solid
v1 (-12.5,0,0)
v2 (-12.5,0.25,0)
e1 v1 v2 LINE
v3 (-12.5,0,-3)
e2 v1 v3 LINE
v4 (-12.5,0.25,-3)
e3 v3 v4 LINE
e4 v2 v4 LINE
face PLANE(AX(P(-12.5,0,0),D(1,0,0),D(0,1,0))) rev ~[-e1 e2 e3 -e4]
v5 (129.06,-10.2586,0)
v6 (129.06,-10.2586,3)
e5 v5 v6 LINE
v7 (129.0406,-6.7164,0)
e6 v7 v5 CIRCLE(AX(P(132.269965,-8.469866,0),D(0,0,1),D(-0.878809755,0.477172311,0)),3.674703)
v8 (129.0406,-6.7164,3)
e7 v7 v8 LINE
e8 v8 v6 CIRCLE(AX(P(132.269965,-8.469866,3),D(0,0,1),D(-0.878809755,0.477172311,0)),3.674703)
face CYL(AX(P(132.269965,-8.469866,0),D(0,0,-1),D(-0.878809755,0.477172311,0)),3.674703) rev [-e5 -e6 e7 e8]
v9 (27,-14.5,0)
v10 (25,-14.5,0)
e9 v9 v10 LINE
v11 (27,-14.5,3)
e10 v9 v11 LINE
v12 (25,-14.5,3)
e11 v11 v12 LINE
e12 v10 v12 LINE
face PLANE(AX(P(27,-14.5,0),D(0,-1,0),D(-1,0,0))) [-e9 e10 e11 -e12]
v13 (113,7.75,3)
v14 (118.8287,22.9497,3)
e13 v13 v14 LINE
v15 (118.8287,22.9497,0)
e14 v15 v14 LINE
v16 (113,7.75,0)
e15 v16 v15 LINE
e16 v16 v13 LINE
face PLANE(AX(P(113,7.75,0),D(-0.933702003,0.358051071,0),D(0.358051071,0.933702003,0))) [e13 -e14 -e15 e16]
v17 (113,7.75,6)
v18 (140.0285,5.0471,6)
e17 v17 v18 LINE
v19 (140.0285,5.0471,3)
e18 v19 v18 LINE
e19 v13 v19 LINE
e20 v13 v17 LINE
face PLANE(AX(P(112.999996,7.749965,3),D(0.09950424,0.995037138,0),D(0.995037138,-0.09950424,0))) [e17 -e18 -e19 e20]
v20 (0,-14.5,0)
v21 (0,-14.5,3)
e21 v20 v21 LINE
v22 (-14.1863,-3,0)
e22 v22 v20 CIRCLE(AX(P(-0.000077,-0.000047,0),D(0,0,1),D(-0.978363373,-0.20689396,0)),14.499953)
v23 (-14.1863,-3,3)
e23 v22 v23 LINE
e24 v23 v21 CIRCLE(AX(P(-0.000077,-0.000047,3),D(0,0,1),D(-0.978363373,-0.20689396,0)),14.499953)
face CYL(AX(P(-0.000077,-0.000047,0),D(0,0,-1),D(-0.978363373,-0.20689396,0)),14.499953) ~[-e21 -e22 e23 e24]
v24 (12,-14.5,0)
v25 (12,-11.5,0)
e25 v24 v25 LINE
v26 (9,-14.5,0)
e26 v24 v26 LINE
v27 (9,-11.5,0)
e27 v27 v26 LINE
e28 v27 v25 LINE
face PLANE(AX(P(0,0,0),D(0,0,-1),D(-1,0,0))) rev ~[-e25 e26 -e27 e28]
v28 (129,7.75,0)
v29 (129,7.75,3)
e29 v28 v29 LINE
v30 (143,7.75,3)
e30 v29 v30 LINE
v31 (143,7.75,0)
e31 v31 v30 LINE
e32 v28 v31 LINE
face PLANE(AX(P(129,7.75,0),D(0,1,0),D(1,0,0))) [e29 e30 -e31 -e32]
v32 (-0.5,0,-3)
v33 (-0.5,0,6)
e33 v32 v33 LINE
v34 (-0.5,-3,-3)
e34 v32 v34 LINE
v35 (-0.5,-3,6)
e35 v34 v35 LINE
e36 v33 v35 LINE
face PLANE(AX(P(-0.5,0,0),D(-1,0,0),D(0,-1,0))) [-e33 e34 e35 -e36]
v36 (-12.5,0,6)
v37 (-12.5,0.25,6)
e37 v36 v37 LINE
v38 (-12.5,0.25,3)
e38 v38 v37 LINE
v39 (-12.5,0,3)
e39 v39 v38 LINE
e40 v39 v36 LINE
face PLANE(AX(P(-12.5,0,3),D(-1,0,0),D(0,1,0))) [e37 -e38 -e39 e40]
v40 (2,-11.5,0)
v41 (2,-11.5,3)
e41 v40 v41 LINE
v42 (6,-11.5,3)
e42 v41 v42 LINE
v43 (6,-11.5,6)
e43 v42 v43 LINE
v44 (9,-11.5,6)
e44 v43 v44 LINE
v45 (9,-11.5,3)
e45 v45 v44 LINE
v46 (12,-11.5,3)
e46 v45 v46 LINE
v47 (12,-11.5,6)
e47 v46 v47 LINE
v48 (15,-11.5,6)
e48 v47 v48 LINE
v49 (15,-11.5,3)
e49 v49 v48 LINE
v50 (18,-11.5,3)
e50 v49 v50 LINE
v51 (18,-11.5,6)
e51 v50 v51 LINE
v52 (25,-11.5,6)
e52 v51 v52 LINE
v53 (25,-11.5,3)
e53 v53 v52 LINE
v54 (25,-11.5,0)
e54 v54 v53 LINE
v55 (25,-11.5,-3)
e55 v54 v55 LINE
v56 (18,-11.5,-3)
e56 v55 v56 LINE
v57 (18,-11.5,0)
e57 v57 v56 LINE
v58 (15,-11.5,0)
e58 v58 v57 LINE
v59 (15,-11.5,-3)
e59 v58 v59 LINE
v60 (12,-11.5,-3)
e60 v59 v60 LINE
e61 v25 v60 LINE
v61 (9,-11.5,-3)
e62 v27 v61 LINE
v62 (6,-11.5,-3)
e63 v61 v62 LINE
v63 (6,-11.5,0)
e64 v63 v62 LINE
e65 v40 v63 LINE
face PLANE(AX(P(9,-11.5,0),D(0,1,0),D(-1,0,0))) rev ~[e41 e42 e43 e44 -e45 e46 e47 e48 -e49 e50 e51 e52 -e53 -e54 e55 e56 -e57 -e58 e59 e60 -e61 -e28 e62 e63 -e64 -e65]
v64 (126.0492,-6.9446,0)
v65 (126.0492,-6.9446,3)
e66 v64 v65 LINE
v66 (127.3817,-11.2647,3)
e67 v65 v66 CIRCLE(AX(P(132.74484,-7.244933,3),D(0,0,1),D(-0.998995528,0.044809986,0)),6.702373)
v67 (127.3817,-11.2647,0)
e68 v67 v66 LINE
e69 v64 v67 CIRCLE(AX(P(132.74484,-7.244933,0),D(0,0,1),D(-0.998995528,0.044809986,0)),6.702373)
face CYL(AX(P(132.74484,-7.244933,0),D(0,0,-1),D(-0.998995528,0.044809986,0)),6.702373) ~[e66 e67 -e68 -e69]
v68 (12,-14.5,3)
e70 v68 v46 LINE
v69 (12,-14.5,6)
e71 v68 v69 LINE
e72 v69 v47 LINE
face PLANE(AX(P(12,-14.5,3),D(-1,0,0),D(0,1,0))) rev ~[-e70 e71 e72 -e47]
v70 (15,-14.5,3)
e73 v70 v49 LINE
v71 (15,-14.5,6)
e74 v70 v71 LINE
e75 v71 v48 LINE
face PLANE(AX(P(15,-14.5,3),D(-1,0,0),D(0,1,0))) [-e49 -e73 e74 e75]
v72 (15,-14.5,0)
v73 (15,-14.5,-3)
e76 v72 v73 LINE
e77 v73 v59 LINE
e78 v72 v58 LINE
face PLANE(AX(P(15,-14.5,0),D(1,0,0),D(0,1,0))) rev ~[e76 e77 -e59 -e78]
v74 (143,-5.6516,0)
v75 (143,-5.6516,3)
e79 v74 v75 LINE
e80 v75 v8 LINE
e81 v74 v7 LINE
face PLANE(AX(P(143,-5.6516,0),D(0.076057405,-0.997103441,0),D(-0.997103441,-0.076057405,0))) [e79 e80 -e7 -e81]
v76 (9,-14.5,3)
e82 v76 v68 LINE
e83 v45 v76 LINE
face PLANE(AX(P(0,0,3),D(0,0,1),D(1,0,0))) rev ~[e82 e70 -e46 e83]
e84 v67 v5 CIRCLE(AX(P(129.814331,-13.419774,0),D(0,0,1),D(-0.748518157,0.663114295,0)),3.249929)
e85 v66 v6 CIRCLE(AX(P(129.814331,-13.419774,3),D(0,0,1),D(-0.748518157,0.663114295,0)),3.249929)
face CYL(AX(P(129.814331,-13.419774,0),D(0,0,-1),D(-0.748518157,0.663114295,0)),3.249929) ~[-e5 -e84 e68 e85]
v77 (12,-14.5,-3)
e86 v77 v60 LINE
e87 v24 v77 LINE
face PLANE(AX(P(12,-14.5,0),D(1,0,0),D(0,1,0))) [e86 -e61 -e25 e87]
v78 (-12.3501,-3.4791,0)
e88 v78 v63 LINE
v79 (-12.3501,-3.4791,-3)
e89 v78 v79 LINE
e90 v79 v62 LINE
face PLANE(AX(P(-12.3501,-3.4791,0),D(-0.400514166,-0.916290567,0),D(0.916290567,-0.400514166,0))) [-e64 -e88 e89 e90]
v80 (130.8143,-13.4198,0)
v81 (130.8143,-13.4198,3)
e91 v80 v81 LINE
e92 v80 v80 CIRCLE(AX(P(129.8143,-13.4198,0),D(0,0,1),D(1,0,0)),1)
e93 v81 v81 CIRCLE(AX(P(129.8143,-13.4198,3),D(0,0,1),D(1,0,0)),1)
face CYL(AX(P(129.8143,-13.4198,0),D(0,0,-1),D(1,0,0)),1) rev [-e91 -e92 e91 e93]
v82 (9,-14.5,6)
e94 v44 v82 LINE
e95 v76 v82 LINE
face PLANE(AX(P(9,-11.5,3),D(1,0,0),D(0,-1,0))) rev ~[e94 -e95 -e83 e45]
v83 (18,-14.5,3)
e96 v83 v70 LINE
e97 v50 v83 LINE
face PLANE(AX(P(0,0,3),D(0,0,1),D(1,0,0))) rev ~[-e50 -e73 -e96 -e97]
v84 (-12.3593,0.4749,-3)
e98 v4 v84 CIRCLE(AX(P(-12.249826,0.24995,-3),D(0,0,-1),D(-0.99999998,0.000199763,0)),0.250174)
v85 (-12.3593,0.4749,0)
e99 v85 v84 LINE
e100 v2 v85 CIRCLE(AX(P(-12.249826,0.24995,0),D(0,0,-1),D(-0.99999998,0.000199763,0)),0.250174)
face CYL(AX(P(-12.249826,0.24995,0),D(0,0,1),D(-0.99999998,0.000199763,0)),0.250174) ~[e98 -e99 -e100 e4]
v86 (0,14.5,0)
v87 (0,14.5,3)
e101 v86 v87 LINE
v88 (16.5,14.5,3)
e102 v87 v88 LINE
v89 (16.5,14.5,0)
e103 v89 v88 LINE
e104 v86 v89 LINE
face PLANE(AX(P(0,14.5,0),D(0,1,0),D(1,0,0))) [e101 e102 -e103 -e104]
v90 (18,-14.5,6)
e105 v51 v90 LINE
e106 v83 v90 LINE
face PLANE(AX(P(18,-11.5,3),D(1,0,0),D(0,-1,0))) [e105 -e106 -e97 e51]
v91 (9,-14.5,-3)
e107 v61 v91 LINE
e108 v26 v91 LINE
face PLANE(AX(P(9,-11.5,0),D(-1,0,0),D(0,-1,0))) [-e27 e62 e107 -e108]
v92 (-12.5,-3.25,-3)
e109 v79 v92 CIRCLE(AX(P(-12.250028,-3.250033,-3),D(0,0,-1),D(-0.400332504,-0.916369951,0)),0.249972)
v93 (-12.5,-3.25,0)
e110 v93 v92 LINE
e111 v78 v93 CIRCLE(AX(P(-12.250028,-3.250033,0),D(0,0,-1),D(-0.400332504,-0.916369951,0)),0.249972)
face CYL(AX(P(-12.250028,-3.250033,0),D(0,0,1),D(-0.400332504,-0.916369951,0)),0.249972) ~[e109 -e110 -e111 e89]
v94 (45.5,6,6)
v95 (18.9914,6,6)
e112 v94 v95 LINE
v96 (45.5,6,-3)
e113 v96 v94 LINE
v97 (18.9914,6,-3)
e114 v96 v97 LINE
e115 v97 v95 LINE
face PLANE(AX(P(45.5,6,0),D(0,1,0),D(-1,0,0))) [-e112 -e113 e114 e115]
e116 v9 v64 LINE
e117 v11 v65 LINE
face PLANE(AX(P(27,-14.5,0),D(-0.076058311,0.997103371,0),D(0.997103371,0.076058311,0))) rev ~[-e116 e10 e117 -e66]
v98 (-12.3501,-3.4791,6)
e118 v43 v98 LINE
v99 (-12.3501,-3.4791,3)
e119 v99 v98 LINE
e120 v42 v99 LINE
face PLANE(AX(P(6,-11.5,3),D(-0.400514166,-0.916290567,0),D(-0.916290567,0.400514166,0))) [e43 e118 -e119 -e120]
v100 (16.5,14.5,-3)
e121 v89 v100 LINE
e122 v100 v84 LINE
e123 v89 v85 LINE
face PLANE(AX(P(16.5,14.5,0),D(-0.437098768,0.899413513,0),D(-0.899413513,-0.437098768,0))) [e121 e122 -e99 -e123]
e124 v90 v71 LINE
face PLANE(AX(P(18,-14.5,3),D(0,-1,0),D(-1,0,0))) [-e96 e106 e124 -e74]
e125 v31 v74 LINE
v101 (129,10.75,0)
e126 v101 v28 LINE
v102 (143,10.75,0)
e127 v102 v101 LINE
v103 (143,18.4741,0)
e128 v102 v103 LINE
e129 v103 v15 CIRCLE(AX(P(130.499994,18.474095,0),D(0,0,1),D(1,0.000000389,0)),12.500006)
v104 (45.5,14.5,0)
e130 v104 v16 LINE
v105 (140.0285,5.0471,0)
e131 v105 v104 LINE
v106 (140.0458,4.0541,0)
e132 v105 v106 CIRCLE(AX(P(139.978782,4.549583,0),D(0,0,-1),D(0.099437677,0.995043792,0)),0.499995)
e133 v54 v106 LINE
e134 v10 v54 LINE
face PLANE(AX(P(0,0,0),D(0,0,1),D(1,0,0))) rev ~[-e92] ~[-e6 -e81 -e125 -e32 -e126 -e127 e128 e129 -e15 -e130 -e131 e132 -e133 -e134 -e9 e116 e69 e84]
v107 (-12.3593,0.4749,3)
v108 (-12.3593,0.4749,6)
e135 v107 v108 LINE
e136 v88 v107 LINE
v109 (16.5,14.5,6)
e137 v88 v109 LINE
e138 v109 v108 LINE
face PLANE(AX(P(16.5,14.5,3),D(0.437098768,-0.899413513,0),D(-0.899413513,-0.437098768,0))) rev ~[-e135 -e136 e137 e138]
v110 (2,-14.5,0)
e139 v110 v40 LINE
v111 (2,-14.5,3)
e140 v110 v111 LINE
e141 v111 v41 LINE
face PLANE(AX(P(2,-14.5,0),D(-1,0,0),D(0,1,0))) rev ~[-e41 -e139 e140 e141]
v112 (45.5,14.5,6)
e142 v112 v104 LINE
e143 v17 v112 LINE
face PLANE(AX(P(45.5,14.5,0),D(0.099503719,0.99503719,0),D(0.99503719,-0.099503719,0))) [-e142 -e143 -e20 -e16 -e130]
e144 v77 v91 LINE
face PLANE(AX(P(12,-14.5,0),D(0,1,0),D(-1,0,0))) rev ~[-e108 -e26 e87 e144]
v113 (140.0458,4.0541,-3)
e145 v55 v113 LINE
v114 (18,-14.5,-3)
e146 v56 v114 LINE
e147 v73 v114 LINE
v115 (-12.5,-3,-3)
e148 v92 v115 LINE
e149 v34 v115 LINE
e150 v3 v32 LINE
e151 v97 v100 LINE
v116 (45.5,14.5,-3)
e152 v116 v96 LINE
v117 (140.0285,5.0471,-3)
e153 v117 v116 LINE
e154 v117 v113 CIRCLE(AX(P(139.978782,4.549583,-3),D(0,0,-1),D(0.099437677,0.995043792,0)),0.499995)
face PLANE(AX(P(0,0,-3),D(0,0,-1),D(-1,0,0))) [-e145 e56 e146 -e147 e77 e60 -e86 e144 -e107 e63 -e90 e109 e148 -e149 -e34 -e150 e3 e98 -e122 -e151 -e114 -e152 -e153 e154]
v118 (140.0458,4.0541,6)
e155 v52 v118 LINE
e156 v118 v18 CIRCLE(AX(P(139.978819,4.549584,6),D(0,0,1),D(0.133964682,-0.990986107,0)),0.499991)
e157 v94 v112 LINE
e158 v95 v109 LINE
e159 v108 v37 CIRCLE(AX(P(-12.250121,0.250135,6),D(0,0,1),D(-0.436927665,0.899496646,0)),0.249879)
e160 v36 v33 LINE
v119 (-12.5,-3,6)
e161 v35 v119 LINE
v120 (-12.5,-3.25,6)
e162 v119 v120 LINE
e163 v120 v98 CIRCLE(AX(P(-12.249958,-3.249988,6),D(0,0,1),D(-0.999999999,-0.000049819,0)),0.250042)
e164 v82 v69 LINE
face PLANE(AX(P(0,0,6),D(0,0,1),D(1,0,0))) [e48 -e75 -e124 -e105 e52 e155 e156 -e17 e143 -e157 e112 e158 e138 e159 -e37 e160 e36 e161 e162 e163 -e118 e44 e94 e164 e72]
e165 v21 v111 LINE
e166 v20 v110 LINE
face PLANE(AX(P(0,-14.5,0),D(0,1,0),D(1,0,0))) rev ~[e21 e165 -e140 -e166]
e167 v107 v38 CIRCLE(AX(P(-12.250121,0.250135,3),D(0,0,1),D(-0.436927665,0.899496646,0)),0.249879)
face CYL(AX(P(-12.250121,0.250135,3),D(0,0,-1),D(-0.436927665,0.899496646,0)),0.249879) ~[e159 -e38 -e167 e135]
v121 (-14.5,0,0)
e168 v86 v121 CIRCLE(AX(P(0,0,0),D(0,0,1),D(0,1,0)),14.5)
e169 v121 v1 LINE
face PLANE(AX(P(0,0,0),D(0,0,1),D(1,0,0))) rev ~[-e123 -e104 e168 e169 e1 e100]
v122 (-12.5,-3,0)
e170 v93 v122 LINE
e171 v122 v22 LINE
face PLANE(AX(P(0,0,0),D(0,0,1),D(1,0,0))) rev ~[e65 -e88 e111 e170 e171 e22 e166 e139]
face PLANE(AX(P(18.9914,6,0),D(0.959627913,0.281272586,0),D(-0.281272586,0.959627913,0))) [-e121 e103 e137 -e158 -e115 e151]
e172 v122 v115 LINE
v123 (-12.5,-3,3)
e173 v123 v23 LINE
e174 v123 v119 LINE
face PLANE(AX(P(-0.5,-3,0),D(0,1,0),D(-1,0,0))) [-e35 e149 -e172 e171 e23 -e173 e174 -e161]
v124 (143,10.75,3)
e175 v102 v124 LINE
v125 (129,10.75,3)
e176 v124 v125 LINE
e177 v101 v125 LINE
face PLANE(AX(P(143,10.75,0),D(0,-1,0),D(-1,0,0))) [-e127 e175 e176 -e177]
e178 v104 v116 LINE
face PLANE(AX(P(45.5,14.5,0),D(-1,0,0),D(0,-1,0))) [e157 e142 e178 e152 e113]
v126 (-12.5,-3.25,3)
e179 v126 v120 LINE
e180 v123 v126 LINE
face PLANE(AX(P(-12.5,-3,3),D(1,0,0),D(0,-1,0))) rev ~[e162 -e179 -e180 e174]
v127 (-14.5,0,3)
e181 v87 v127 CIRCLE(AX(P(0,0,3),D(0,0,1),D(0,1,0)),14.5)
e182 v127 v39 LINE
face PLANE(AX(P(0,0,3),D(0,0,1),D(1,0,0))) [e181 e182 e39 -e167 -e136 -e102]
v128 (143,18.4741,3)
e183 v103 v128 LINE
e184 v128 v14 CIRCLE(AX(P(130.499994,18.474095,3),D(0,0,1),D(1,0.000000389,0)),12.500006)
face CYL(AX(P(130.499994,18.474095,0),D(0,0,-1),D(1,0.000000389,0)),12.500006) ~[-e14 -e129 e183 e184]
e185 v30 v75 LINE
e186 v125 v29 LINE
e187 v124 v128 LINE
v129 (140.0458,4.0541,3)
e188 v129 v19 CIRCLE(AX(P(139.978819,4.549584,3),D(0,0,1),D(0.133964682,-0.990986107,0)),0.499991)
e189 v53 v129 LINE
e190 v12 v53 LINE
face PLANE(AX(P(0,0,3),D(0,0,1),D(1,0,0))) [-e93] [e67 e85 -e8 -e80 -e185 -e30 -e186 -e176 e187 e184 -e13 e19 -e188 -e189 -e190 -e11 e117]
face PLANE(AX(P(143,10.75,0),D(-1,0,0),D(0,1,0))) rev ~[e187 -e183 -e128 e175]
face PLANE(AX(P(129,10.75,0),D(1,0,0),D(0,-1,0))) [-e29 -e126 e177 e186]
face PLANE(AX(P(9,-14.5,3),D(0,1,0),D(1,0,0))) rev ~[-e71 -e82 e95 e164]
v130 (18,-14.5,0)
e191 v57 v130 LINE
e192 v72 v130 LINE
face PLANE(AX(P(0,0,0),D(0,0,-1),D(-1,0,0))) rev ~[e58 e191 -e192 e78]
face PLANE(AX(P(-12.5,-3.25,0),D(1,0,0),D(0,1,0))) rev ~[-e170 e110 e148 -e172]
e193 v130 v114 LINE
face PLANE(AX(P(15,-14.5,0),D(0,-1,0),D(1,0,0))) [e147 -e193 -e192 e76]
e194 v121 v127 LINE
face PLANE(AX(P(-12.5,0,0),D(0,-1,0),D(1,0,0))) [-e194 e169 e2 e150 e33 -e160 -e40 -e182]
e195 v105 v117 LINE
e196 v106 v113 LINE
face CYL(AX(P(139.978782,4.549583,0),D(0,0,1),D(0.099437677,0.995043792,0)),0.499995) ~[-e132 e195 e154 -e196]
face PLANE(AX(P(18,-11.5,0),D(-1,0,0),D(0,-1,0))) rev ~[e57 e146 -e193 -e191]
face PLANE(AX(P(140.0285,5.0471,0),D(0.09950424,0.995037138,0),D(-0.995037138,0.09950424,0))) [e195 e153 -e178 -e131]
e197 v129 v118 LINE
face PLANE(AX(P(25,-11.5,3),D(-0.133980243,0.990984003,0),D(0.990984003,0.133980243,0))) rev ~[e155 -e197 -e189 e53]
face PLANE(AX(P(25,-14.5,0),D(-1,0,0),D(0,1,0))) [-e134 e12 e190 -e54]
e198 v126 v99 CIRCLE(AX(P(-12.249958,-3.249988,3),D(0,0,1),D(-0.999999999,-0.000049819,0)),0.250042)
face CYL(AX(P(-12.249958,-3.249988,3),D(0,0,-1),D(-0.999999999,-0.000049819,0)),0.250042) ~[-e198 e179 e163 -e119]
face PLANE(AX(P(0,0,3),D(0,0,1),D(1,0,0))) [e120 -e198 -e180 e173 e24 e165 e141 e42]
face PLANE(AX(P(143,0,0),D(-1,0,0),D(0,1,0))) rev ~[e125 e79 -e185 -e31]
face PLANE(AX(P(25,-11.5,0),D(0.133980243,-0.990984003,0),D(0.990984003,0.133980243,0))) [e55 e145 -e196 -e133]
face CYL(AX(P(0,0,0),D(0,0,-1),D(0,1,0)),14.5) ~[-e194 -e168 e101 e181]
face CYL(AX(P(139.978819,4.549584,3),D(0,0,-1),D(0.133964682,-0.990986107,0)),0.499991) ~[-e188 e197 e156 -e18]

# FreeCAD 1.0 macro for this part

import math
import FreeCAD as App
import Part
import Sketcher

V = App.Vector
Q = App.Units.Quantity

doc = App.newDocument("Part")
params = doc.addObject("Spreadsheet::Sheet", "Params")
for row, (alias, value) in enumerate([
    ("sketch1_diameter", "2 mm"),
    ("sketch1_radius", "14.5 mm"),
    ("sketch1_width", "14 mm"),
    ("sketch1_width2", "2 mm"),
    ("sketch1_height", "3 mm"),
    ("pad1_length", "3 mm"),
    ("sketch2_width", "12 mm"),
    ("sketch2_width2", "3 mm"),
    ("sketch2_radius", "0.5 mm"),
    ("sketch2_width3", "7 mm"),
    ("sketch2_radius2", "0.25 mm"),
    ("pad2_length", "3 mm"),
    ("sketch3_radius", "0.5 mm"),
    ("sketch3_width", "7 mm"),
    ("sketch3_width2", "3 mm"),
    ("sketch3_width3", "12 mm"),
    ("sketch3_radius2", "0.25 mm"),
    ("pad3_length", "3 mm"),
], start=1):
    params.set(f"A{row}", alias)
    params.set(f"B{row}", "=" + value)
    params.setAlias(f"B{row}", alias)

body = doc.addObject("PartDesign::Body", "Body")

sketch1 = doc.addObject("Sketcher::SketchObject", "Sketch")
body.addObject(sketch1)
sketch1.AttachmentSupport = (doc.XY_Plane, [""])
sketch1.MapMode = "FlatFace"
sketch1.addGeometry(Part.LineSegment(V(16.5, 14.5, 0), V(0, 14.5, 0)), False)
sketch1.addGeometry(Part.ArcOfCircle(Part.Circle(V(0, 0, 0), V(0, 0, 1), 14.5), math.radians(90), math.radians(180)), False)
sketch1.addGeometry(Part.LineSegment(V(-14.5, 0, 0), V(-0.5, 0, 0)), False)
sketch1.addGeometry(Part.LineSegment(V(-0.5, 0, 0), V(-0.5, -3, 0)), False)
sketch1.addGeometry(Part.LineSegment(V(-0.5, -3, 0), V(-14.2, -3, 0)), False)
sketch1.addGeometry(Part.ArcOfCircle(Part.Circle(V(0, 0, 0), V(0, 0, 1), 14.5), math.radians(-168), math.radians(-90)), False)
sketch1.addGeometry(Part.LineSegment(V(0, -14.5, 0), V(2, -14.5, 0)), False)
sketch1.addGeometry(Part.LineSegment(V(2, -14.5, 0), V(2, -11.5, 0)), False)
sketch1.addGeometry(Part.LineSegment(V(2, -11.5, 0), V(25, -11.5, 0)), False)
sketch1.addGeometry(Part.LineSegment(V(25, -11.5, 0), V(25, -14.5, 0)), False)
sketch1.addGeometry(Part.LineSegment(V(25, -14.5, 0), V(27, -14.5, 0)), False)
sketch1.addGeometry(Part.LineSegment(V(27, -14.5, 0), V(126, -6.9, 0)), False)
sketch1.addGeometry(Part.ArcOfCircle(Part.Circle(V(132.7, -7.2, 0), V(0, 0, 1), 6.7), math.radians(177), math.radians(217)), False)
sketch1.addGeometry(Part.ArcOfCircle(Part.Circle(V(129.8, -13.4, 0), V(0, 0, 1), 3.2), math.radians(138), math.radians(463)), False)
sketch1.addGeometry(Part.ArcOfCircle(Part.Circle(V(132.3, -8.5, 0), V(0, 0, 1), 3.7), math.radians(151), math.radians(209)), False)
sketch1.addGeometry(Part.LineSegment(V(129, -6.7, 0), V(143, -5.7, 0)), False)
sketch1.addGeometry(Part.LineSegment(V(143, -5.7, 0), V(143, 7.8, 0)), False)
sketch1.addGeometry(Part.LineSegment(V(143, 7.8, 0), V(129, 7.8, 0)), False)
sketch1.addGeometry(Part.LineSegment(V(129, 7.8, 0), V(129, 10.8, 0)), False)
sketch1.addGeometry(Part.LineSegment(V(129, 10.8, 0), V(143, 10.8, 0)), False)
sketch1.addGeometry(Part.LineSegment(V(143, 10.8, 0), V(143, 18.5, 0)), False)
sketch1.addGeometry(Part.ArcOfCircle(Part.Circle(V(130.5, 18.5, 0), V(0, 0, 1), 12.5), math.radians(0), math.radians(159)), False)
sketch1.addGeometry(Part.LineSegment(V(118.8, 22.9, 0), V(113, 7.8, 0)), False)
sketch1.addGeometry(Part.LineSegment(V(113, 7.8, 0), V(45.5, 14.5, 0)), False)
sketch1.addGeometry(Part.LineSegment(V(45.5, 14.5, 0), V(45.5, 6, 0)), False)
sketch1.addGeometry(Part.LineSegment(V(45.5, 6, 0), V(19, 6, 0)), False)
sketch1.addGeometry(Part.LineSegment(V(19, 6, 0), V(16.5, 14.5, 0)), False)
sketch1.addGeometry(Part.Circle(V(129.8, -13.4, 0), V(0, 0, 1), 1), False)
sketch1.addConstraint(Sketcher.Constraint("Tangent", 0, 2, 1, 1))
sketch1.addConstraint(Sketcher.Constraint("Coincident", 1, 2, 2, 1))
sketch1.addConstraint(Sketcher.Constraint("Coincident", 2, 2, 3, 1))
sketch1.addConstraint(Sketcher.Constraint("Coincident", 3, 2, 4, 1))
sketch1.addConstraint(Sketcher.Constraint("Coincident", 4, 2, 5, 1))
sketch1.addConstraint(Sketcher.Constraint("Tangent", 5, 2, 6, 1))
sketch1.addConstraint(Sketcher.Constraint("Coincident", 6, 2, 7, 1))
sketch1.addConstraint(Sketcher.Constraint("Coincident", 7, 2, 8, 1))
sketch1.addConstraint(Sketcher.Constraint("Coincident", 8, 2, 9, 1))
sketch1.addConstraint(Sketcher.Constraint("Coincident", 9, 2, 10, 1))
sketch1.addConstraint(Sketcher.Constraint("Coincident", 10, 2, 11, 1))
sketch1.addConstraint(Sketcher.Constraint("Coincident", 11, 2, 12, 1))
sketch1.addConstraint(Sketcher.Constraint("Coincident", 12, 2, 13, 1))
sketch1.addConstraint(Sketcher.Constraint("Coincident", 13, 2, 14, 2))
sketch1.addConstraint(Sketcher.Constraint("Coincident", 14, 1, 15, 1))
sketch1.addConstraint(Sketcher.Constraint("Coincident", 15, 2, 16, 1))
sketch1.addConstraint(Sketcher.Constraint("Coincident", 16, 2, 17, 1))
sketch1.addConstraint(Sketcher.Constraint("Coincident", 17, 2, 18, 1))
sketch1.addConstraint(Sketcher.Constraint("Coincident", 18, 2, 19, 1))
sketch1.addConstraint(Sketcher.Constraint("Coincident", 19, 2, 20, 1))
sketch1.addConstraint(Sketcher.Constraint("Tangent", 20, 2, 21, 1))
sketch1.addConstraint(Sketcher.Constraint("Tangent", 21, 2, 22, 1))
sketch1.addConstraint(Sketcher.Constraint("Coincident", 22, 2, 23, 1))
sketch1.addConstraint(Sketcher.Constraint("Coincident", 23, 2, 24, 1))
sketch1.addConstraint(Sketcher.Constraint("Coincident", 24, 2, 25, 1))
sketch1.addConstraint(Sketcher.Constraint("Coincident", 25, 2, 26, 1))
sketch1.addConstraint(Sketcher.Constraint("Coincident", 26, 2, 0, 1))
sketch1.addConstraint(Sketcher.Constraint("Horizontal", 0))
sketch1.addConstraint(Sketcher.Constraint("Horizontal", 2))
sketch1.addConstraint(Sketcher.Constraint("Vertical", 3))
sketch1.addConstraint(Sketcher.Constraint("Horizontal", 4))
sketch1.addConstraint(Sketcher.Constraint("Horizontal", 6))
sketch1.addConstraint(Sketcher.Constraint("Vertical", 7))
sketch1.addConstraint(Sketcher.Constraint("Horizontal", 8))
sketch1.addConstraint(Sketcher.Constraint("Vertical", 9))
sketch1.addConstraint(Sketcher.Constraint("Horizontal", 10))
sketch1.addConstraint(Sketcher.Constraint("Vertical", 16))
sketch1.addConstraint(Sketcher.Constraint("Horizontal", 17))
sketch1.addConstraint(Sketcher.Constraint("Vertical", 18))
sketch1.addConstraint(Sketcher.Constraint("Horizontal", 19))
sketch1.addConstraint(Sketcher.Constraint("Vertical", 20))
sketch1.addConstraint(Sketcher.Constraint("Vertical", 24))
sketch1.addConstraint(Sketcher.Constraint("Horizontal", 25))
sketch1.addConstraint(Sketcher.Constraint("Coincident", 1, 3, -1, 1))
sketch1.addConstraint(Sketcher.Constraint("Coincident", 5, 3, -1, 1))
sketch1.addConstraint(Sketcher.Constraint("Coincident", 27, 3, 13, 3))
sketch1.addConstraint(Sketcher.Constraint("Equal", 1, 5))
sketch1.addConstraint(Sketcher.Constraint("PointOnObject", 1, 2, -1))
sketch1.addConstraint(Sketcher.Constraint("Parallel", 11, 15))
sketch1.addConstraint(Sketcher.Constraint("Horizontal", 6, 2, 9, 2))
sketch1.addConstraint(Sketcher.Constraint("Horizontal", 17, 2, 22, 2))
sketch1.addConstraint(Sketcher.Constraint("Horizontal", 0, 2, 23, 2))
sketch1.addConstraint(Sketcher.Constraint("Vertical", 16, 2, 19, 2))
sketch1.addConstraint(Sketcher.Constraint("Equal", 6, 10))
sketch1.addConstraint(Sketcher.Constraint("Equal", 2, 17))
sketch1.addConstraint(Sketcher.Constraint("Equal", 3, 7))
sketch1.addConstraint(Sketcher.Constraint("Equal", 9, 18))
sketch1.addConstraint(Sketcher.Constraint("Diameter", 27, Q("2 mm")))
sketch1.addConstraint(Sketcher.Constraint("Radius", 1, Q("14.5 mm")))
sketch1.addConstraint(Sketcher.Constraint("DistanceX", 2, 1, 2, 2, Q("14 mm")))
sketch1.addConstraint(Sketcher.Constraint("DistanceX", 6, 1, 6, 2, Q("2 mm")))
sketch1.addConstraint(Sketcher.Constraint("DistanceY", 3, 2, 3, 1, Q("3 mm")))
sketch1.addConstraint(Sketcher.Constraint("Radius", 13, Q("3.25 mm")))
sketch1.addConstraint(Sketcher.Constraint("Distance", 15, Q("14 mm")))
sketch1.addConstraint(Sketcher.Constraint("DistanceY", 24, 2, 24, 1, Q("8.5 mm")))
sketch1.addConstraint(Sketcher.Constraint("DistanceX", -1, 1, 15, 2, Q("143 mm")))
sketch1.addConstraint(Sketcher.Constraint("Radius", 21, Q("12.5 mm")))
sketch1.addConstraint(Sketcher.Constraint("DistanceX", 8, 1, 8, 2, Q("23 mm")))
sketch1.addConstraint(Sketcher.Constraint("DistanceX", 0, 2, 0, 1, Q("16.5 mm")))
sketch1.addConstraint(Sketcher.Constraint("DistanceX", -1, 1, 22, 2, Q("113 mm")))
sketch1.addConstraint(Sketcher.Constraint("DistanceX", -1, 1, 23, 2, Q("45.5 mm")))
sketch1.addConstraint(Sketcher.Constraint("Angle", 22, Q("-110.9806 deg")))
sketch1.addConstraint(Sketcher.Constraint("Angle", 23, Q("174.2894 deg")))
sketch1.addConstraint(Sketcher.Constraint("Radius", 12, Q("6.7026 mm")))
sketch1.addConstraint(Sketcher.Constraint("Radius", 14, Q("3.6744 mm")))
sketch1.addConstraint(Sketcher.Constraint("DistanceX", -1, 1, 13, 2, Q("129.06 mm")))
sketch1.addConstraint(Sketcher.Constraint("DistanceY", 13, 3, 14, 3, Q("4.95 mm")))
sketch1.addConstraint(Sketcher.Constraint("DistanceY", 12, 2, 11, 2, Q("4.32 mm")))
sketch1.addConstraint(Sketcher.Constraint("Distance", 11, Q("99.337 mm")))
sketch1.addConstraint(Sketcher.Constraint("DistanceX", 25, 2, 25, 1, Q("26.5086 mm")))
sketch1.addConstraint(Sketcher.Constraint("DistanceY", 16, 1, 16, 2, Q("13.4016 mm")))
sketch1.addConstraint(Sketcher.Constraint("DistanceX", -1, 1, 12, 3, Q("132.745 mm")))
sketch1.addConstraint(Sketcher.Constraint("DistanceY", 12, 3, -1, 1, Q("7.245 mm")))
sketch1.setExpression("Constraints[57]", "Params.sketch1_diameter")
sketch1.setExpression("Constraints[58]", "Params.sketch1_radius")
sketch1.setExpression("Constraints[59]", "Params.sketch1_width")
sketch1.setExpression("Constraints[60]", "Params.sketch1_width2")
sketch1.setExpression("Constraints[61]", "Params.sketch1_height")
pad1 = doc.addObject("PartDesign::Pad", "Pad")
body.addObject(pad1)
pad1.Profile = sketch1
pad1.setExpression("Length", "Params.pad1_length")

sketch2 = doc.addObject("Sketcher::SketchObject", "Sketch001")
body.addObject(sketch2)
sketch2.AttachmentSupport = (doc.XY_Plane, [""])
sketch2.MapMode = "FlatFace"
sketch2.AttachmentOffset = App.Placement(V(0, 0, 3), App.Rotation())
sketch2.addGeometry(Part.LineSegment(V(140.03, 5.05, 0), V(113, 7.75, 0)), False)
sketch2.addGeometry(Part.LineSegment(V(113, 7.75, 0), V(45.5, 14.5, 0)), False)
sketch2.addGeometry(Part.LineSegment(V(45.5, 14.5, 0), V(45.5, 6, 0)), False)
sketch2.addGeometry(Part.LineSegment(V(45.5, 6, 0), V(18.99, 6, 0)), False)
sketch2.addGeometry(Part.LineSegment(V(18.99, 6, 0), V(16.5, 14.5, 0)), False)
sketch2.addGeometry(Part.LineSegment(V(16.5, 14.5, 0), V(-12.36, 0.47, 0)), False)
sketch2.addGeometry(Part.ArcOfCircle(Part.Circle(V(-12.25, 0.25, 0), V(0, 0, 1), 0.25), math.radians(116), math.radians(180)), False)
sketch2.addGeometry(Part.LineSegment(V(-12.5, 0.25, 0), V(-12.5, 0, 0)), False)
sketch2.addGeometry(Part.LineSegment(V(-12.5, 0, 0), V(-0.5, 0, 0)), False)
sketch2.addGeometry(Part.LineSegment(V(-0.5, 0, 0), V(-0.5, -3, 0)), False)
sketch2.addGeometry(Part.LineSegment(V(-0.5, -3, 0), V(-12.5, -3, 0)), False)
sketch2.addGeometry(Part.LineSegment(V(-12.5, -3, 0), V(-12.5, -3.25, 0)), False)
sketch2.addGeometry(Part.ArcOfCircle(Part.Circle(V(-12.25, -3.25, 0), V(0, 0, 1), 0.25), math.radians(180), math.radians(246)), False)
sketch2.addGeometry(Part.LineSegment(V(-12.35, -3.48, 0), V(6, -11.5, 0)), False)
sketch2.addGeometry(Part.LineSegment(V(6, -11.5, 0), V(9, -11.5, 0)), False)
sketch2.addGeometry(Part.LineSegment(V(9, -11.5, 0), V(9, -14.5, 0)), False)
sketch2.addGeometry(Part.LineSegment(V(9, -14.5, 0), V(12, -14.5, 0)), False)
sketch2.addGeometry(Part.LineSegment(V(12, -14.5, 0), V(12, -11.5, 0)), False)
sketch2.addGeometry(Part.LineSegment(V(12, -11.5, 0), V(15, -11.5, 0)), False)
sketch2.addGeometry(Part.LineSegment(V(15, -11.5, 0), V(15, -14.5, 0)), False)
sketch2.addGeometry(Part.LineSegment(V(15, -14.5, 0), V(18, -14.5, 0)), False)
sketch2.addGeometry(Part.LineSegment(V(18, -14.5, 0), V(18, -11.5, 0)), False)
sketch2.addGeometry(Part.LineSegment(V(18, -11.5, 0), V(25, -11.5, 0)), False)
sketch2.addGeometry(Part.LineSegment(V(25, -11.5, 0), V(140.05, 4.05, 0)), False)
sketch2.addGeometry(Part.ArcOfCircle(Part.Circle(V(139.98, 4.55, 0), V(0, 0, 1), 0.5), math.radians(-82), math.radians(84)), False)
sketch2.addConstraint(Sketcher.Constraint("Coincident", 0, 2, 1, 1))
sketch2.addConstraint(Sketcher.Constraint("Coincident", 1, 2, 2, 1))
sketch2.addConstraint(Sketcher.Constraint("Coincident", 2, 2, 3, 1))
sketch2.addConstraint(Sketcher.Constraint("Coincident", 3, 2, 4, 1))
sketch2.addConstraint(Sketcher.Constraint("Coincident", 4, 2, 5, 1))
sketch2.addConstraint(Sketcher.Constraint("Tangent", 5, 2, 6, 1))
sketch2.addConstraint(Sketcher.Constraint("Tangent", 6, 2, 7, 1))
sketch2.addConstraint(Sketcher.Constraint("Coincident", 7, 2, 8, 1))
sketch2.addConstraint(Sketcher.Constraint("Coincident", 8, 2, 9, 1))
sketch2.addConstraint(Sketcher.Constraint("Coincident", 9, 2, 10, 1))
sketch2.addConstraint(Sketcher.Constraint("Coincident", 10, 2, 11, 1))
sketch2.addConstraint(Sketcher.Constraint("Tangent", 11, 2, 12, 1))
sketch2.addConstraint(Sketcher.Constraint("Tangent", 12, 2, 13, 1))
sketch2.addConstraint(Sketcher.Constraint("Coincident", 13, 2, 14, 1))
sketch2.addConstraint(Sketcher.Constraint("Coincident", 14, 2, 15, 1))
sketch2.addConstraint(Sketcher.Constraint("Coincident", 15, 2, 16, 1))
sketch2.addConstraint(Sketcher.Constraint("Coincident", 16, 2, 17, 1))
sketch2.addConstraint(Sketcher.Constraint("Coincident", 17, 2, 18, 1))
sketch2.addConstraint(Sketcher.Constraint("Coincident", 18, 2, 19, 1))
sketch2.addConstraint(Sketcher.Constraint("Coincident", 19, 2, 20, 1))
sketch2.addConstraint(Sketcher.Constraint("Coincident", 20, 2, 21, 1))
sketch2.addConstraint(Sketcher.Constraint("Coincident", 21, 2, 22, 1))
sketch2.addConstraint(Sketcher.Constraint("Coincident", 22, 2, 23, 1))
sketch2.addConstraint(Sketcher.Constraint("Tangent", 23, 2, 24, 1))
sketch2.addConstraint(Sketcher.Constraint("Tangent", 24, 2, 0, 1))
sketch2.addConstraint(Sketcher.Constraint("Vertical", 2))
sketch2.addConstraint(Sketcher.Constraint("Horizontal", 3))
sketch2.addConstraint(Sketcher.Constraint("Vertical", 7))
sketch2.addConstraint(Sketcher.Constraint("Horizontal", 8))
sketch2.addConstraint(Sketcher.Constraint("Vertical", 9))
sketch2.addConstraint(Sketcher.Constraint("Horizontal", 10))
sketch2.addConstraint(Sketcher.Constraint("Vertical", 11))
sketch2.addConstraint(Sketcher.Constraint("Horizontal", 14))
sketch2.addConstraint(Sketcher.Constraint("Vertical", 15))
sketch2.addConstraint(Sketcher.Constraint("Horizontal", 16))
sketch2.addConstraint(Sketcher.Constraint("Vertical", 17))
sketch2.addConstraint(Sketcher.Constraint("Horizontal", 18))
sketch2.addConstraint(Sketcher.Constraint("Vertical", 19))
sketch2.addConstraint(Sketcher.Constraint("Horizontal", 20))
sketch2.addConstraint(Sketcher.Constraint("Vertical", 21))
sketch2.addConstraint(Sketcher.Constraint("Horizontal", 22))
sketch2.addConstraint(Sketcher.Constraint("Equal", 6, 12))
sketch2.addConstraint(Sketcher.Constraint("PointOnObject", 7, 2, -1))
sketch2.addConstraint(Sketcher.Constraint("Parallel", 0, 1))
sketch2.addConstraint(Sketcher.Constraint("Horizontal", 1, 2, 4, 2))
sketch2.addConstraint(Sketcher.Constraint("Horizontal", 14, 2, 17, 2))
sketch2.addConstraint(Sketcher.Constraint("Horizontal", 16, 2, 19, 2))
sketch2.addConstraint(Sketcher.Constraint("Horizontal", 18, 2, 21, 2))
sketch2.addConstraint(Sketcher.Constraint("Vertical", 6, 3, 12, 3))
sketch2.addConstraint(Sketcher.Constraint("Equal", 14, 16))
sketch2.addConstraint(Sketcher.Constraint("Equal", 16, 18))
sketch2.addConstraint(Sketcher.Constraint("Equal", 18, 20))
sketch2.addConstraint(Sketcher.Constraint("Equal", 20, 9))
sketch2.addConstraint(Sketcher.Constraint("Equal", 7, 11))
sketch2.addConstraint(Sketcher.Constraint("Equal", 9, 15))
sketch2.addConstraint(Sketcher.Constraint("DistanceX", 8, 1, 8, 2, Q("12 mm")))
sketch2.addConstraint(Sketcher.Constraint("DistanceX", 14, 1, 14, 2, Q("3 mm")))
sketch2.addConstraint(Sketcher.Constraint("DistanceX", -1, 1, 16, 2, Q("12 mm")))
sketch2.addConstraint(Sketcher.Constraint("Radius", 24, Q("0.5 mm")))
sketch2.addConstraint(Sketcher.Constraint("DistanceX", 22, 1, 22, 2, Q("7 mm")))
sketch2.addConstraint(Sketcher.Constraint("Radius", 6, Q("0.25 mm")))
sketch2.addConstraint(Sketcher.Constraint("DistanceY", 2, 2, 2, 1, Q("8.5 mm")))
sketch2.addConstraint(Sketcher.Constraint("DistanceX", -1, 1, 0, 2, Q("113 mm")))
sketch2.addConstraint(Sketcher.Constraint("DistanceY", -1, 1, 2, 2, Q("6 mm")))
sketch2.addConstraint(Sketcher.Constraint("Angle", 23, Q("7.6997 deg")))
sketch2.addConstraint(Sketcher.Constraint("DistanceY", 12, 3, 0, 2, Q("11 mm")))
sketch2.addConstraint(Sketcher.Constraint("DistanceX", 4, 2, 1, 2, Q("29 mm")))
sketch2.addConstraint(Sketcher.Constraint("DistanceX", 6, 2, 4, 2, Q("29 mm")))
sketch2.addConstraint(Sketcher.Constraint("DistanceY", 7, 2, 7, 1, Q("0.25 mm")))
sketch2.addConstraint(Sketcher.Constraint("DistanceX", -1, 1, 1, 2, Q("45.5 mm")))
sketch2.addConstraint(Sketcher.Constraint("DistanceY", 13, 2, -1, 1, Q("11.5 mm")))
sketch2.addConstraint(Sketcher.Constraint("DistanceX", 3, 2, 3, 1, Q("26.5086 mm")))
sketch2.setExpression("Constraints[55]", "Params.sketch2_width")
sketch2.setExpression("Constraints[56]", "Params.sketch2_width2")
sketch2.setExpression("Constraints[58]", "Params.sketch2_radius")
sketch2.setExpression("Constraints[59]", "Params.sketch2_width3")
sketch2.setExpression("Constraints[60]", "Params.sketch2_radius2")
pad2 = doc.addObject("PartDesign::Pad", "Pad001")
body.addObject(pad2)
pad2.Profile = sketch2
pad2.setExpression("Length", "Params.pad2_length")

sketch3 = doc.addObject("Sketcher::SketchObject", "Sketch002")
body.addObject(sketch3)
sketch3.AttachmentSupport = (doc.XY_Plane, [""])
sketch3.MapMode = "FlatFace"
sketch3.addGeometry(Part.LineSegment(V(45.5, 14.5, 0), V(140.03, 5.05, 0)), False)
sketch3.addGeometry(Part.ArcOfCircle(Part.Circle(V(139.98, 4.55, 0), V(0, 0, 1), 0.5), math.radians(-82), math.radians(84)), False)
sketch3.addGeometry(Part.LineSegment(V(140.05, 4.05, 0), V(25, -11.5, 0)), False)
sketch3.addGeometry(Part.LineSegment(V(25, -11.5, 0), V(18, -11.5, 0)), False)
sketch3.addGeometry(Part.LineSegment(V(18, -11.5, 0), V(18, -14.5, 0)), False)
sketch3.addGeometry(Part.LineSegment(V(18, -14.5, 0), V(15, -14.5, 0)), False)
sketch3.addGeometry(Part.LineSegment(V(15, -14.5, 0), V(15, -11.5, 0)), False)
sketch3.addGeometry(Part.LineSegment(V(15, -11.5, 0), V(12, -11.5, 0)), False)
sketch3.addGeometry(Part.LineSegment(V(12, -11.5, 0), V(12, -14.5, 0)), False)
sketch3.addGeometry(Part.LineSegment(V(12, -14.5, 0), V(9, -14.5, 0)), False)
sketch3.addGeometry(Part.LineSegment(V(9, -14.5, 0), V(9, -11.5, 0)), False)
sketch3.addGeometry(Part.LineSegment(V(9, -11.5, 0), V(6, -11.5, 0)), False)
sketch3.addGeometry(Part.LineSegment(V(6, -11.5, 0), V(-12.35, -3.48, 0)), False)
sketch3.addGeometry(Part.ArcOfCircle(Part.Circle(V(-12.25, -3.25, 0), V(0, 0, 1), 0.25), math.radians(180), math.radians(246)), False)
sketch3.addGeometry(Part.LineSegment(V(-12.5, -3.25, 0), V(-12.5, -3, 0)), False)
sketch3.addGeometry(Part.LineSegment(V(-12.5, -3, 0), V(-0.5, -3, 0)), False)
sketch3.addGeometry(Part.LineSegment(V(-0.5, -3, 0), V(-0.5, 0, 0)), False)
sketch3.addGeometry(Part.LineSegment(V(-0.5, 0, 0), V(-12.5, 0, 0)), False)
sketch3.addGeometry(Part.LineSegment(V(-12.5, 0, 0), V(-12.5, 0.25, 0)), False)
sketch3.addGeometry(Part.ArcOfCircle(Part.Circle(V(-12.25, 0.25, 0), V(0, 0, 1), 0.25), math.radians(116), math.radians(180)), False)
sketch3.addGeometry(Part.LineSegment(V(-12.36, 0.47, 0), V(16.5, 14.5, 0)), False)
sketch3.addGeometry(Part.LineSegment(V(16.5, 14.5, 0), V(18.99, 6, 0)), False)
sketch3.addGeometry(Part.LineSegment(V(18.99, 6, 0), V(45.5, 6, 0)), False)
sketch3.addGeometry(Part.LineSegment(V(45.5, 6, 0), V(45.5, 14.5, 0)), False)
sketch3.addConstraint(Sketcher.Constraint("Tangent", 0, 2, 1, 2))
sketch3.addConstraint(Sketcher.Constraint("Tangent", 1, 1, 2, 1))
sketch3.addConstraint(Sketcher.Constraint("Coincident", 2, 2, 3, 1))
sketch3.addConstraint(Sketcher.Constraint("Coincident", 3, 2, 4, 1))
sketch3.addConstraint(Sketcher.Constraint("Coincident", 4, 2, 5, 1))
sketch3.addConstraint(Sketcher.Constraint("Coincident", 5, 2, 6, 1))
sketch3.addConstraint(Sketcher.Constraint("Coincident", 6, 2, 7, 1))
sketch3.addConstraint(Sketcher.Constraint("Coincident", 7, 2, 8, 1))
sketch3.addConstraint(Sketcher.Constraint("Coincident", 8, 2, 9, 1))
sketch3.addConstraint(Sketcher.Constraint("Coincident", 9, 2, 10, 1))
sketch3.addConstraint(Sketcher.Constraint("Coincident", 10, 2, 11, 1))
sketch3.addConstraint(Sketcher.Constraint("Coincident", 11, 2, 12, 1))
sketch3.addConstraint(Sketcher.Constraint("Tangent", 12, 2, 13, 2))
sketch3.addConstraint(Sketcher.Constraint("Tangent", 13, 1, 14, 1))
sketch3.addConstraint(Sketcher.Constraint("Coincident", 14, 2, 15, 1))
sketch3.addConstraint(Sketcher.Constraint("Coincident", 15, 2, 16, 1))
sketch3.addConstraint(Sketcher.Constraint("Coincident", 16, 2, 17, 1))
sketch3.addConstraint(Sketcher.Constraint("Coincident", 17, 2, 18, 1))
sketch3.addConstraint(Sketcher.Constraint("Tangent", 18, 2, 19, 2))
sketch3.addConstraint(Sketcher.Constraint("Tangent", 19, 1, 20, 1))
sketch3.addConstraint(Sketcher.Constraint("Coincident", 20, 2, 21, 1))
sketch3.addConstraint(Sketcher.Constraint("Coincident", 21, 2, 22, 1))
sketch3.addConstraint(Sketcher.Constraint("Coincident", 22, 2, 23, 1))
sketch3.addConstraint(Sketcher.Constraint("Coincident", 23, 2, 0, 1))
sketch3.addConstraint(Sketcher.Constraint("Horizontal", 3))
sketch3.addConstraint(Sketcher.Constraint("Vertical", 4))
sketch3.addConstraint(Sketcher.Constraint("Horizontal", 5))
sketch3.addConstraint(Sketcher.Constraint("Vertical", 6))
sketch3.addConstraint(Sketcher.Constraint("Horizontal", 7))
sketch3.addConstraint(Sketcher.Constraint("Vertical", 8))
sketch3.addConstraint(Sketcher.Constraint("Horizontal", 9))
sketch3.addConstraint(Sketcher.Constraint("Vertical", 10))
sketch3.addConstraint(Sketcher.Constraint("Horizontal", 11))
sketch3.addConstraint(Sketcher.Constraint("Vertical", 14))
sketch3.addConstraint(Sketcher.Constraint("Horizontal", 15))
sketch3.addConstraint(Sketcher.Constraint("Vertical", 16))
sketch3.addConstraint(Sketcher.Constraint("Horizontal", 17))
sketch3.addConstraint(Sketcher.Constraint("Vertical", 18))
sketch3.addConstraint(Sketcher.Constraint("Horizontal", 22))
sketch3.addConstraint(Sketcher.Constraint("Vertical", 23))
sketch3.addConstraint(Sketcher.Constraint("Equal", 13, 19))
sketch3.addConstraint(Sketcher.Constraint("PointOnObject", 16, 2, -1))
sketch3.addConstraint(Sketcher.Constraint("Horizontal", 3, 2, 6, 2))
sketch3.addConstraint(Sketcher.Constraint("Horizontal", 5, 2, 8, 2))
sketch3.addConstraint(Sketcher.Constraint("Horizontal", 7, 2, 10, 2))
sketch3.addConstraint(Sketcher.Constraint("Horizontal", 20, 2, 23, 2))
sketch3.addConstraint(Sketcher.Constraint("Vertical", 13, 3, 19, 3))
sketch3.addConstraint(Sketcher.Constraint("Equal", 5, 7))
sketch3.addConstraint(Sketcher.Constraint("Equal", 7, 9))
sketch3.addConstraint(Sketcher.Constraint("Equal", 9, 11))
sketch3.addConstraint(Sketcher.Constraint("Equal", 11, 4))
sketch3.addConstraint(Sketcher.Constraint("Equal", 10, 16))
sketch3.addConstraint(Sketcher.Constraint("Equal", 14, 18))
sketch3.addConstraint(Sketcher.Constraint("Radius", 1, Q("0.5 mm")))
sketch3.addConstraint(Sketcher.Constraint("DistanceX", 3, 2, 3, 1, Q("7 mm")))
sketch3.addConstraint(Sketcher.Constraint("DistanceX", 5, 2, 5, 1, Q("3 mm")))
sketch3.addConstraint(Sketcher.Constraint("DistanceX", 15, 1, 15, 2, Q("12 mm")))
sketch3.addConstraint(Sketcher.Constraint("Radius", 13, Q("0.25 mm")))
sketch3.addConstraint(Sketcher.Constraint("Distance", 0, Q("95 mm")))
sketch3.addConstraint(Sketcher.Constraint("DistanceY", 23, 1, 23, 2, Q("8.5 mm")))
sketch3.addConstraint(Sketcher.Constraint("DistanceX", -1, 1, 2, 2, Q("25 mm")))
sketch3.addConstraint(Sketcher.Constraint("DistanceY", -1, 1, 21, 2, Q("6 mm")))
sketch3.addConstraint(Sketcher.Constraint("Angle", 2, Q("-172.3003 deg")))
sketch3.addConstraint(Sketcher.Constraint("DistanceX", 16, 2, 20, 2, Q("17 mm")))
sketch3.addConstraint(Sketcher.Constraint("DistanceY", 3, 2, 20, 2, Q("26 mm")))
sketch3.addConstraint(Sketcher.Constraint("DistanceX", 20, 2, 22, 2, Q("29 mm")))
sketch3.addConstraint(Sketcher.Constraint("DistanceY", 14, 1, 14, 2, Q("0.25 mm")))
sketch3.addConstraint(Sketcher.Constraint("DistanceX", 13, 1, -1, 1, Q("12.5 mm")))
sketch3.addConstraint(Sketcher.Constraint("DistanceX", 22, 1, 22, 2, Q("26.5086 mm")))
sketch3.setExpression("Constraints[53]", "Params.sketch3_radius")
sketch3.setExpression("Constraints[54]", "Params.sketch3_width")
sketch3.setExpression("Constraints[55]", "Params.sketch3_width2")
sketch3.setExpression("Constraints[56]", "Params.sketch3_width3")
sketch3.setExpression("Constraints[57]", "Params.sketch3_radius2")
pad3 = doc.addObject("PartDesign::Pad", "Pad002")
body.addObject(pad3)
pad3.Profile = sketch3
pad3.setExpression("Length", "Params.pad3_length")
pad3.Reversed = True

doc.recompute()
